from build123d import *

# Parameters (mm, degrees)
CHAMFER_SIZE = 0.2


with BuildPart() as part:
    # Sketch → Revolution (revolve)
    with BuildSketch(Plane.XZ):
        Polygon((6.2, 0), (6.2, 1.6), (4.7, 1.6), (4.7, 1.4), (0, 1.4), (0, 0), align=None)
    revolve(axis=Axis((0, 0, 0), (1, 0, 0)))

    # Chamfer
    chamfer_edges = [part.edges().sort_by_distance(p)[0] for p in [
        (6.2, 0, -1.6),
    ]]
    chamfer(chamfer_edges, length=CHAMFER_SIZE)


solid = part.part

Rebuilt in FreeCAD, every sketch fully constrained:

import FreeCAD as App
import Part
import Sketcher


def edges_at(feature, points):
    """Names of the edges that pass closest to the given points."""
    edges = feature.Shape.Edges
    near = lambda p: min(range(len(edges)), key=lambda i: edges[i].distToShape(Part.Vertex(*p))[0])
    return sorted({f"Edge{near(p) + 1}" for p in points})


def add_polygon(sketch, points):
    """Adds a closed chain of lines whose ends are joined by coincident constraints."""
    first, n = sketch.GeometryCount, len(points)
    for a, b in zip(points, points[1:] + points[:1]):
        sketch.addGeometry(Part.LineSegment(App.Vector(*a, 0), App.Vector(*b, 0)), False)
    for i in range(n):
        sketch.addConstraint(Sketcher.Constraint("Coincident", first + i, 2, first + (i + 1) % n, 1))

doc = App.newDocument("Part")
params = doc.addObject("Spreadsheet::Sheet", "Params")
for row, (alias, value) in enumerate([
    ("sketch1_width", "1.5 mm"),
    ("sketch1_width2", "4.7 mm"),
    ("sketch1_height", "1.6 mm"),
    ("sketch1_height2", "0.2 mm"),
    ("revolution_angle", "360 deg"),
    ("chamfer_size", "0.2 mm"),
], start=1):
    params.set(f"A{row}", alias)
    params.set(f"B{row}", "=" + value)
    params.setAlias(f"B{row}", alias)

body = doc.addObject("PartDesign::Body", "Body")

# Sketch on XZ plane
sketch1 = body.newObject("Sketcher::SketchObject", "Sketch")
sketch1.AttachmentSupport = (doc.getObject("XZ_Plane"), [""])
sketch1.MapMode = "FlatFace"
add_polygon(sketch1, [(6.2, 0), (6.2, 1.6), (4.7, 1.6), (4.7, 1.4), (0, 1.4), (0, 0)])  # lines 0-5
sketch1.addConstraint([
    Sketcher.Constraint("Vertical", 0),
    Sketcher.Constraint("Horizontal", 1),
    Sketcher.Constraint("Vertical", 2),
    Sketcher.Constraint("Horizontal", 3),
    Sketcher.Constraint("Vertical", 4),
    Sketcher.Constraint("Horizontal", 5),
    Sketcher.Constraint("Coincident", 4, 2, -1, 1),
    Sketcher.Constraint("DistanceX", 1, 2, 1, 1, 1.5),
    Sketcher.Constraint("DistanceX", 3, 2, 3, 1, 4.7),
    Sketcher.Constraint("DistanceY", 0, 1, 0, 2, 1.6),
    Sketcher.Constraint("DistanceY", 2, 2, 2, 1, 0.2),
])
sketch1.setExpression("Constraints[13]", "Params.sketch1_width")
sketch1.setExpression("Constraints[14]", "Params.sketch1_width2")
sketch1.setExpression("Constraints[15]", "Params.sketch1_height")
sketch1.setExpression("Constraints[16]", "Params.sketch1_height2")
revolution = body.newObject("PartDesign::Revolution", "Revolution")
revolution.Profile = sketch1
revolution.ReferenceAxis = (sketch1, ["H_Axis"])
revolution.setExpression("Angle", "Params.revolution_angle")
doc.recompute()

chamfer = body.newObject("PartDesign::Chamfer", "Chamfer")
chamfer.Base = (revolution, edges_at(revolution, [(6.2, 0, -1.6)]))
chamfer.setExpression("Size", "Params.chamfer_size")

doc.recompute()
